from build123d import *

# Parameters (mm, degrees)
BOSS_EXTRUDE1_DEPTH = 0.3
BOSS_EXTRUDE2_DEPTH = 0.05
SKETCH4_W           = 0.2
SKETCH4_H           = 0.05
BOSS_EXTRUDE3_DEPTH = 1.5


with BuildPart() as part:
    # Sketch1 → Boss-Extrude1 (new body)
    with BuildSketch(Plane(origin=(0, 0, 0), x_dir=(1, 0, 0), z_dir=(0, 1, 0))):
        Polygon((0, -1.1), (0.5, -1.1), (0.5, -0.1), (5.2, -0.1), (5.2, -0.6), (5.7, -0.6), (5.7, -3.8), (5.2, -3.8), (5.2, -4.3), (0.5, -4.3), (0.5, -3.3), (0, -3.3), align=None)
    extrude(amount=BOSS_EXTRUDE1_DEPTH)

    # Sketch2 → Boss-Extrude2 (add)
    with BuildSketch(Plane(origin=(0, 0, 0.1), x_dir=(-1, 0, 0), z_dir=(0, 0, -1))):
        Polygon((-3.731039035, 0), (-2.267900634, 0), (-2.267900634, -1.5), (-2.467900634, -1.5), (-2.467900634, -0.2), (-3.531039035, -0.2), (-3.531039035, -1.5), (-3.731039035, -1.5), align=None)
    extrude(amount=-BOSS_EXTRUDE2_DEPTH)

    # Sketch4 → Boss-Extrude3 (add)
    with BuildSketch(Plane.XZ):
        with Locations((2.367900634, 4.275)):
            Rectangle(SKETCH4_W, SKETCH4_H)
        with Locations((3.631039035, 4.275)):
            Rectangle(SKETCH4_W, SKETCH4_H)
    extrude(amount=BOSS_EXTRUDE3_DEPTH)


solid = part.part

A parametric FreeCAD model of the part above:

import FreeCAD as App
import Part
import Sketcher


def add_polygon(sketch, points):
    """Adds a closed chain of lines whose ends are joined by coincident constraints."""
    first, n = sketch.GeometryCount, len(points)
    for a, b in zip(points, points[1:] + points[:1]):
        sketch.addGeometry(Part.LineSegment(App.Vector(*a, 0), App.Vector(*b, 0)), False)
    for i in range(n):
        sketch.addConstraint(Sketcher.Constraint("Coincident", first + i, 2, first + (i + 1) % n, 1))

doc = App.newDocument("Part")
body = doc.addObject("PartDesign::Body", "Body")

sketch1 = body.newObject("Sketcher::SketchObject", "Sketch")
sketch1.AttachmentSupport = (doc.getObject("XZ_Plane"), [""])
sketch1.MapMode = "FlatFace"
add_polygon(sketch1, [(0.5, 1.1), (0, 1.1), (0, 3.3), (0.5, 3.3), (0.5, 4.3), (5.2, 4.3), (5.2, 3.8), (5.7, 3.8), (5.7, 0.6), (5.2, 0.6), (5.2, 0.1), (0.5, 0.1)])
sketch1.addConstraint([
    Sketcher.Constraint("Horizontal", 0),
    Sketcher.Constraint("Vertical", 1),
    Sketcher.Constraint("Horizontal", 2),
    Sketcher.Constraint("Vertical", 3),
    Sketcher.Constraint("Horizontal", 4),
    Sketcher.Constraint("Vertical", 5),
    Sketcher.Constraint("Horizontal", 6),
    Sketcher.Constraint("Vertical", 7),
    Sketcher.Constraint("Horizontal", 8),
    Sketcher.Constraint("Vertical", 9),
    Sketcher.Constraint("Horizontal", 10),
    Sketcher.Constraint("Vertical", 11),
    Sketcher.Constraint("PointOnObject", 0, 2, -2),
    Sketcher.Constraint("Vertical", 5, 2, 8, 2),
    Sketcher.Constraint("Vertical", 3, 2, 10, 2),
    Sketcher.Constraint("Equal", 2, 6),
    Sketcher.Constraint("Equal", 8, 5),
    Sketcher.Constraint("Equal", 5, 9),
    Sketcher.Constraint("Equal", 3, 11),
    Sketcher.Constraint("DistanceY", 3, 1, 3, 2, 1.0),
    Sketcher.Constraint("DistanceX", 0, 2, 0, 1, 0.5),
    Sketcher.Constraint("DistanceX", 4, 1, 4, 2, 4.7),
    Sketcher.Constraint("DistanceY", 1, 1, 1, 2, 2.2),
    Sketcher.Constraint("DistanceY", -1, 1, 0, 2, 1.1),
])
pad1 = body.newObject("PartDesign::Pad", "Pad")
pad1.Profile = sketch1
pad1.Length = 0.3
pad1.Reversed = True

sketch2 = body.newObject("Sketcher::SketchObject", "Sketch001")
sketch2.AttachmentSupport = (doc.getObject("XY_Plane"), [""])
sketch2.MapMode = "FlatFace"
sketch2.AttachmentOffset = App.Placement(App.Vector(0, 0, 0.1), App.Rotation())
add_polygon(sketch2, [(2.27, 0), (3.73, 0), (3.73, -1.5), (3.53, -1.5), (3.53, -0.2), (2.47, -0.2), (2.47, -1.5), (2.27, -1.5)])
sketch2.addConstraint([
    Sketcher.Constraint("Horizontal", 0),
    Sketcher.Constraint("Vertical", 1),
    Sketcher.Constraint("Horizontal", 2),
    Sketcher.Constraint("Vertical", 3),
    Sketcher.Constraint("Horizontal", 4),
    Sketcher.Constraint("Vertical", 5),
    Sketcher.Constraint("Horizontal", 6),
    Sketcher.Constraint("Vertical", 7),
    Sketcher.Constraint("PointOnObject", 0, 2, -1),
    Sketcher.Constraint("Horizontal", 2, 2, 5, 2),
    Sketcher.Constraint("Equal", 2, 6),
    Sketcher.Constraint("DistanceX", 2, 2, 2, 1, 0.2),
    Sketcher.Constraint("DistanceY", 1, 2, 1, 1, 1.5),
    Sketcher.Constraint("DistanceY", 3, 1, 3, 2, 1.3),
    Sketcher.Constraint("DistanceX", 0, 1, 0, 2, 1.463138),
    Sketcher.Constraint("DistanceX", -1, 1, 4, 2, 2.467901),
])
pad2 = body.newObject("PartDesign::Pad", "Pad001")
pad2.Profile = sketch2
pad2.Length = 0.05

sketch3 = body.newObject("Sketcher::SketchObject", "Sketch002")
sketch3.AttachmentSupport = (doc.getObject("XZ_Plane"), [""])
sketch3.MapMode = "FlatFace"
add_polygon(sketch3, [(2.268, 4.3), (2.268, 4.25), (2.468, 4.25), (2.468, 4.3)])
add_polygon(sketch3, [(3.531, 4.3), (3.531, 4.25), (3.731, 4.25), (3.731, 4.3)])
sketch3.addConstraint([
    Sketcher.Constraint("Vertical", 0),
    Sketcher.Constraint("Horizontal", 1),
    Sketcher.Constraint("Vertical", 2),
    Sketcher.Constraint("Horizontal", 3),
    Sketcher.Constraint("Vertical", 4),
    Sketcher.Constraint("Horizontal", 5),
    Sketcher.Constraint("Vertical", 6),
    Sketcher.Constraint("Horizontal", 7),
    Sketcher.Constraint("Horizontal", 1, 2, 4, 2),
    Sketcher.Constraint("Horizontal", 3, 2, 6, 2),
    Sketcher.Constraint("Equal", 3, 5),
    Sketcher.Constraint("DistanceX", 1, 1, 1, 2, 0.2),
    Sketcher.Constraint("DistanceY", 0, 2, 0, 1, 0.05),
    Sketcher.Constraint("DistanceY", -1, 1, 2, 2, 4.3),
    Sketcher.Constraint("DistanceX", -1, 1, 0, 2, 2.267901),
    Sketcher.Constraint("DistanceX", -1, 1, 4, 2, 3.531039),
])
pad3 = body.newObject("PartDesign::Pad", "Pad002")
pad3.Profile = sketch3
pad3.Length = 1.5

doc.recompute()
